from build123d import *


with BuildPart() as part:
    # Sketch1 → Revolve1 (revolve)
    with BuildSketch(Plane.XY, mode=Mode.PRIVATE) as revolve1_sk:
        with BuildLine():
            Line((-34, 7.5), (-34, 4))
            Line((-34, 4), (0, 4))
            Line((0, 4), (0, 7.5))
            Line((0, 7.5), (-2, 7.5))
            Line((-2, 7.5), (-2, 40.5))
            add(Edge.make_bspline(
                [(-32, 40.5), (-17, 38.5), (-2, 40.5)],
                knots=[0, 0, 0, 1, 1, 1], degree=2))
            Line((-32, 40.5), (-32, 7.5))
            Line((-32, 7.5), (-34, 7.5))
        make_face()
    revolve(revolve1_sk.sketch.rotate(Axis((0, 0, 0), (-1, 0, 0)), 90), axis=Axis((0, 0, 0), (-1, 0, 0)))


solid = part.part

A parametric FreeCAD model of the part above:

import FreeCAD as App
import Part
import Sketcher

V = App.Vector
Q = App.Units.Quantity

doc = App.newDocument("Part")
body = doc.addObject("PartDesign::Body", "Body")

# Sketch on XY plane
sketch1 = body.newObject("Sketcher::SketchObject", "Sketch")
sketch1.AttachmentSupport = (doc.getObject("XY_Plane"), [""])
sketch1.MapMode = "FlatFace"
sketch1.addGeometry(Part.LineSegment(V(-34, 7.5, 0), V(-34, 4, 0)), False)
sketch1.addGeometry(Part.LineSegment(V(-34, 4, 0), V(0, 4, 0)), False)
sketch1.addGeometry(Part.LineSegment(V(0, 4, 0), V(0, 7.5, 0)), False)
sketch1.addGeometry(Part.LineSegment(V(0, 7.5, 0), V(-2, 7.5, 0)), False)
sketch1.addGeometry(Part.LineSegment(V(-2, 7.5, 0), V(-2, 40.5, 0)), False)
sketch1.addGeometry(Part.BSplineCurve([V(-32, 40.5, 0), V(-17, 38.5, 0), V(-2, 40.5, 0)], [3, 3], [0, 1], False, 2, [1, 1, 1], False), False)
sketch1.addGeometry(Part.LineSegment(V(-32, 40.5, 0), V(-32, 7.5, 0)), False)
sketch1.addGeometry(Part.LineSegment(V(-32, 7.5, 0), V(-34, 7.5, 0)), False)
sketch1.addConstraint(Sketcher.Constraint("Block", 5))
sketch1.addConstraint(Sketcher.Constraint("Coincident", 0, 2, 1, 1))
sketch1.addConstraint(Sketcher.Constraint("Coincident", 1, 2, 2, 1))
sketch1.addConstraint(Sketcher.Constraint("Coincident", 2, 2, 3, 1))
sketch1.addConstraint(Sketcher.Constraint("Coincident", 3, 2, 4, 1))
sketch1.addConstraint(Sketcher.Constraint("Coincident", 4, 2, 5, 2))
sketch1.addConstraint(Sketcher.Constraint("Coincident", 5, 1, 6, 1))
sketch1.addConstraint(Sketcher.Constraint("Coincident", 6, 2, 7, 1))
sketch1.addConstraint(Sketcher.Constraint("Coincident", 7, 2, 0, 1))
sketch1.addConstraint(Sketcher.Constraint("Vertical", 0))
sketch1.addConstraint(Sketcher.Constraint("Horizontal", 1))
sketch1.addConstraint(Sketcher.Constraint("Vertical", 2))
sketch1.addConstraint(Sketcher.Constraint("Horizontal", 3))
sketch1.addConstraint(Sketcher.Constraint("Vertical", 4))
sketch1.addConstraint(Sketcher.Constraint("Vertical", 6))
sketch1.addConstraint(Sketcher.Constraint("Horizontal", 7))
sketch1.addConstraint(Sketcher.Constraint("PointOnObject", 1, 2, -2))
sketch1.addConstraint(Sketcher.Constraint("DistanceX", 1, 1, 1, 2, Q("34 mm")))
sketch1.addConstraint(Sketcher.Constraint("DistanceY", 4, 1, 4, 2, Q("33 mm")))
sketch1.addConstraint(Sketcher.Constraint("DistanceY", 6, 2, 6, 1, Q("33 mm")))
sketch1.addConstraint(Sketcher.Constraint("DistanceY", 0, 2, 0, 1, Q("3.5 mm")))
revolution = body.newObject("PartDesign::Revolution", "Revolution")
revolution.Profile = sketch1
revolution.ReferenceAxis = (sketch1, ["H_Axis"])
revolution.Angle = 360

doc.recompute()
